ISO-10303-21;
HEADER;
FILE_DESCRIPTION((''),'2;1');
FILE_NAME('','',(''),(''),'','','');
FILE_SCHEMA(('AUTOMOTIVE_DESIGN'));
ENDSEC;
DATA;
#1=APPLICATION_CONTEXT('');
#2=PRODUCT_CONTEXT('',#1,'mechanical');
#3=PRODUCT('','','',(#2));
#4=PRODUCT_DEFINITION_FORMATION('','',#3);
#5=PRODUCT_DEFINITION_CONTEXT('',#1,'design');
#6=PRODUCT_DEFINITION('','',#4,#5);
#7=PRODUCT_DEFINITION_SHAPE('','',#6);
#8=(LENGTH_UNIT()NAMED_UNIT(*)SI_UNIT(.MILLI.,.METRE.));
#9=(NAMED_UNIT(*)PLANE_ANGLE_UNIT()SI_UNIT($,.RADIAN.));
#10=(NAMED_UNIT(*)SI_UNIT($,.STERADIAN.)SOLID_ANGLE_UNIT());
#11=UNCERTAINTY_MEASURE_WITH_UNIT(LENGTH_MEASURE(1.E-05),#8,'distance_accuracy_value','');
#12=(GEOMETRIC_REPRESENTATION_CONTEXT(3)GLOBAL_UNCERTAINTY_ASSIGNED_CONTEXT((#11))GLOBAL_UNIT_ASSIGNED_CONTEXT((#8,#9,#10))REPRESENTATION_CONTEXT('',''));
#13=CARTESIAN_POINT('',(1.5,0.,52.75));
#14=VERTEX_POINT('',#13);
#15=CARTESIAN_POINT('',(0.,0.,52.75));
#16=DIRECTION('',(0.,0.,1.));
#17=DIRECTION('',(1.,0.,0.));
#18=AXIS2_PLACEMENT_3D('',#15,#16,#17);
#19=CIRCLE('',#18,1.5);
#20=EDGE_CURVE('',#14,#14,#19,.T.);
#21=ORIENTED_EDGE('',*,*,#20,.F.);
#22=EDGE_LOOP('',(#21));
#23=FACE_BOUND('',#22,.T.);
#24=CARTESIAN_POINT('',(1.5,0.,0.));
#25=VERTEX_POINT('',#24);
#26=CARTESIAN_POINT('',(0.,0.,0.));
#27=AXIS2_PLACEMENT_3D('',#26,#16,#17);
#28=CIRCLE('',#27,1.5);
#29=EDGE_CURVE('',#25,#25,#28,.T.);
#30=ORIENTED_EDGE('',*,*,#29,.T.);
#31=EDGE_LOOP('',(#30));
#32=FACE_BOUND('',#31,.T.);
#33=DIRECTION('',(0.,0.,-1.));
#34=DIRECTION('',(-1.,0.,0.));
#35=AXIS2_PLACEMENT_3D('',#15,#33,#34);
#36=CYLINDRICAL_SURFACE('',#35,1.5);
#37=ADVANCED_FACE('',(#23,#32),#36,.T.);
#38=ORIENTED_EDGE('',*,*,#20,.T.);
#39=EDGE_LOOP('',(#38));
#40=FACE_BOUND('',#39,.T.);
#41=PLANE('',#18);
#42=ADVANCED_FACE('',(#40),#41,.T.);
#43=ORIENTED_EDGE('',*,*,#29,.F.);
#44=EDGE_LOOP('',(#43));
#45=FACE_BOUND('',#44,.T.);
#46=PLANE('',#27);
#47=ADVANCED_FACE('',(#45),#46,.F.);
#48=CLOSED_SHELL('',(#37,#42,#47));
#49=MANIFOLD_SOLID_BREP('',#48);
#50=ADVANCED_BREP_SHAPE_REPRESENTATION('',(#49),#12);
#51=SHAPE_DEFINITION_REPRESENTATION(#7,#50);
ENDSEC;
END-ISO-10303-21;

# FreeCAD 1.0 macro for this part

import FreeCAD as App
import Part
import Sketcher
Q = App.Units.Quantity

doc = App.newDocument("Part")
body = doc.addObject("PartDesign::Body", "Body")

# Sketch on XY plane
sketch1 = body.newObject("Sketcher::SketchObject", "Sketch")
sketch1.AttachmentSupport = (doc.getObject("XY_Plane"), [""])
sketch1.MapMode = "FlatFace"
sketch1.addGeometry(Part.Circle(App.Vector(0, 0, 0), App.Vector(0, 0, 1), 1.5), False)
sketch1.addConstraint(Sketcher.Constraint("Coincident", 0, 3, -1, 1))
sketch1.addConstraint(Sketcher.Constraint("Diameter", 0, Q("3 mm")))
pad1 = body.newObject("PartDesign::Pad", "Pad")
pad1.Profile = sketch1
pad1.Length = 52.75

doc.recompute()
